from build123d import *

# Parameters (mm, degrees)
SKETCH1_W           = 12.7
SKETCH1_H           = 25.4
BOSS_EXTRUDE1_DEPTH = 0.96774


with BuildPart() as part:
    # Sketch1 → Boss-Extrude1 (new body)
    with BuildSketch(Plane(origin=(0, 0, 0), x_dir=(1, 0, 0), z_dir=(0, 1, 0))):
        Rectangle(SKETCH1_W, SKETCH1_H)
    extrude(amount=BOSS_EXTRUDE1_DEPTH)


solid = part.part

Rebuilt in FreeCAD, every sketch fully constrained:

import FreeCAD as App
import Part
import Sketcher

V = App.Vector
Q = App.Units.Quantity


def add_polygon(sketch, points):
    """Adds a closed chain of lines whose ends are joined by coincident constraints."""
    first, n = sketch.GeometryCount, len(points)
    for a, b in zip(points, points[1:] + points[:1]):
        sketch.addGeometry(Part.LineSegment(App.Vector(*a, 0), App.Vector(*b, 0)), False)
    for i in range(n):
        sketch.addConstraint(Sketcher.Constraint("Coincident", first + i, 2, first + (i + 1) % n, 1))

doc = App.newDocument("Part")
body = doc.addObject("PartDesign::Body", "Body")

# Sketch on XZ plane
sketch1 = body.newObject("Sketcher::SketchObject", "Sketch")
sketch1.AttachmentSupport = (doc.getObject("XZ_Plane"), [""])
sketch1.MapMode = "FlatFace"
add_polygon(sketch1, [(-6.35, -12.7), (-6.35, 12.7), (6.35, 12.7), (6.35, -12.7)])  # lines 0-3
sketch1.addConstraint(Sketcher.Constraint("Vertical", 0))
sketch1.addConstraint(Sketcher.Constraint("Horizontal", 1))
sketch1.addConstraint(Sketcher.Constraint("Vertical", 2))
sketch1.addConstraint(Sketcher.Constraint("Horizontal", 3))
sketch1.addConstraint(Sketcher.Constraint("Symmetric", 0, 2, 2, 2, -1, 1))
sketch1.addConstraint(Sketcher.Constraint("DistanceY", 0, 1, 0, 2, Q("1 in")))
sketch1.addConstraint(Sketcher.Constraint("DistanceX", 1, 1, 1, 2, Q("0.5 in")))
pad1 = body.newObject("PartDesign::Pad", "Pad")
pad1.Profile = sketch1
pad1.Length = Q("0.0381 in")
pad1.Reversed = True

doc.recompute()
